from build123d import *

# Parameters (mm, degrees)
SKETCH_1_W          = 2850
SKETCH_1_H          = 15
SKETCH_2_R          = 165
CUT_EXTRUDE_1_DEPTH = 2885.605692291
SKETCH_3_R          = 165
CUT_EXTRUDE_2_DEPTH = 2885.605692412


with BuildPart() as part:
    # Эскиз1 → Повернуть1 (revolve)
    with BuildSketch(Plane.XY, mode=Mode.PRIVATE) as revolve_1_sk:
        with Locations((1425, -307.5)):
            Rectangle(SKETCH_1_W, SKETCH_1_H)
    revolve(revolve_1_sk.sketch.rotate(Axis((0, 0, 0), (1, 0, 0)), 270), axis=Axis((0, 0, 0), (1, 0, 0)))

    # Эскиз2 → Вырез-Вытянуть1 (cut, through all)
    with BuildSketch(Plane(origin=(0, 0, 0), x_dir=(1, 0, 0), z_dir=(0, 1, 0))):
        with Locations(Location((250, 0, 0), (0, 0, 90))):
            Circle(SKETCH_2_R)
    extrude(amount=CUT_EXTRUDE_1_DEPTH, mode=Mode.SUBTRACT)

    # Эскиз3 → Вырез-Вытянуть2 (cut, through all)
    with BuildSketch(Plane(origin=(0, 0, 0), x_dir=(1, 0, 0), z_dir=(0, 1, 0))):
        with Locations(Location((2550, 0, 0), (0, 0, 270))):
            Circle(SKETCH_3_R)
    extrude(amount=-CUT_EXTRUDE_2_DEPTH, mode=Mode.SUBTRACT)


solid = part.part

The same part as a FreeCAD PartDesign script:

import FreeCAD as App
import Part
import Sketcher
from FreeCAD import Vector


def add_polygon(sketch, points):
    """Adds a closed chain of lines whose ends are joined by coincident constraints."""
    first, n = sketch.GeometryCount, len(points)
    for a, b in zip(points, points[1:] + points[:1]):
        sketch.addGeometry(Part.LineSegment(App.Vector(*a, 0), App.Vector(*b, 0)), False)
    for i in range(n):
        sketch.addConstraint(Sketcher.Constraint("Coincident", first + i, 2, first + (i + 1) % n, 1))

doc = App.newDocument("Part")
body = doc.addObject("PartDesign::Body", "Body")

sketch1 = body.newObject("Sketcher::SketchObject", "Sketch")
sketch1.AttachmentSupport = (doc.getObject("XY_Plane"), [""])
sketch1.MapMode = "FlatFace"
add_polygon(sketch1, [(0, -300), (0, -315), (2850, -315), (2850, -300)])
sketch1.addConstraint(Sketcher.Constraint("Vertical", 0))
sketch1.addConstraint(Sketcher.Constraint("Horizontal", 1))
sketch1.addConstraint(Sketcher.Constraint("Vertical", 2))
sketch1.addConstraint(Sketcher.Constraint("Horizontal", 3))
sketch1.addConstraint(Sketcher.Constraint("PointOnObject", 0, 2, -2))
sketch1.addConstraint(Sketcher.Constraint("DistanceX", 1, 1, 1, 2, 2850.0))
sketch1.addConstraint(Sketcher.Constraint("DistanceY", 0, 2, 0, 1, 15.0))
sketch1.addConstraint(Sketcher.Constraint("DistanceY", 0, 2, -1, 1, 315.0))
revolution = body.newObject("PartDesign::Revolution", "Revolution")
revolution.Profile = sketch1
revolution.ReferenceAxis = (sketch1, ["H_Axis"])
revolution.Angle = 360

sketch2 = body.newObject("Sketcher::SketchObject", "Sketch001")
sketch2.AttachmentSupport = (doc.getObject("XZ_Plane"), [""])
sketch2.MapMode = "FlatFace"
sketch2.addGeometry(Part.Circle(Vector(250, 0, 0), Vector(0, 0, 1), 165), False)
sketch2.addConstraint(Sketcher.Constraint("PointOnObject", 0, 3, -1))
sketch2.addConstraint(Sketcher.Constraint("Diameter", 0, 330.0))
sketch2.addConstraint(Sketcher.Constraint("DistanceX", -1, 1, 0, 3, 250.0))
pocket1 = body.newObject("PartDesign::Pocket", "Pocket")
pocket1.Profile = sketch2
pocket1.Type = "ThroughAll"

sketch3 = body.newObject("Sketcher::SketchObject", "Sketch002")
sketch3.AttachmentSupport = (doc.getObject("XZ_Plane"), [""])
sketch3.MapMode = "FlatFace"
sketch3.addGeometry(Part.Circle(Vector(2550, 0, 0), Vector(0, 0, 1), 165), False)
sketch3.addConstraint(Sketcher.Constraint("PointOnObject", 0, 3, -1))
sketch3.addConstraint(Sketcher.Constraint("Diameter", 0, 330.0))
sketch3.addConstraint(Sketcher.Constraint("DistanceX", -1, 1, 0, 3, 2550.0))
pocket2 = body.newObject("PartDesign::Pocket", "Pocket001")
pocket2.Profile = sketch3
pocket2.Type = "ThroughAll"
pocket2.Reversed = True

doc.recompute()
